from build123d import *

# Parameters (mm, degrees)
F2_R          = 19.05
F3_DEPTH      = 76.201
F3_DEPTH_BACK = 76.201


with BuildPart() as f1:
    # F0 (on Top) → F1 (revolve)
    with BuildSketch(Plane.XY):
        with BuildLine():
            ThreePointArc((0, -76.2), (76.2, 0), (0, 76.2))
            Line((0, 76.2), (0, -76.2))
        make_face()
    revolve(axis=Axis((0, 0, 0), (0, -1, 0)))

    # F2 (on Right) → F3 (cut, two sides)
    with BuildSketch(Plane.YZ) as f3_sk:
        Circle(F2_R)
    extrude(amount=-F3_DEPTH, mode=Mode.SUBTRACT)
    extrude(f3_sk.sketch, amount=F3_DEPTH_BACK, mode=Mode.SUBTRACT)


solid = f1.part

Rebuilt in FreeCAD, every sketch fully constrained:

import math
import FreeCAD as App
import Part
import Sketcher
Q = App.Units.Quantity

doc = App.newDocument("Part")
body = doc.addObject("PartDesign::Body", "Body")

# Sketch on XY plane
sketch1 = body.newObject("Sketcher::SketchObject", "Sketch")
sketch1.AttachmentSupport = (doc.getObject("XY_Plane"), [""])
sketch1.MapMode = "FlatFace"
sketch1.addGeometry(Part.ArcOfCircle(Part.Circle(App.Vector(0, 0, 0), App.Vector(0, 0, 1), 76.2), math.radians(-90), math.radians(90)), False)
sketch1.addGeometry(Part.LineSegment(App.Vector(0, 76.2, 0), App.Vector(0, -76.2, 0)), False)
sketch1.addConstraint(Sketcher.Constraint("Coincident", 0, 1, 1, 2))
sketch1.addConstraint(Sketcher.Constraint("Coincident", 1, 1, 0, 2))
sketch1.addConstraint(Sketcher.Constraint("Vertical", 1))
sketch1.addConstraint(Sketcher.Constraint("Coincident", 0, 3, -1, 1))
sketch1.addConstraint(Sketcher.Constraint("PointOnObject", 0, 1, -2))
sketch1.addConstraint(Sketcher.Constraint("Radius", 0, Q("3 in")))
revolution = body.newObject("PartDesign::Revolution", "Revolution")
revolution.Profile = sketch1
revolution.ReferenceAxis = (sketch1, ["V_Axis"])
revolution.Angle = 360

# Sketch on YZ plane
sketch2 = body.newObject("Sketcher::SketchObject", "Sketch001")
sketch2.AttachmentSupport = (doc.getObject("YZ_Plane"), [""])
sketch2.MapMode = "FlatFace"
sketch2.addGeometry(Part.Circle(App.Vector(0, 0, 0), App.Vector(0, 0, 1), 19.05), False)
sketch2.addConstraint(Sketcher.Constraint("Coincident", 0, 3, -1, 1))
sketch2.addConstraint(Sketcher.Constraint("Diameter", 0, Q("1.5 in")))
pocket1 = body.newObject("PartDesign::Pocket", "Pocket")
pocket1.Profile = sketch2
pocket1.Type = "ThroughAll"
pocket1.Midplane = True

doc.recompute()
